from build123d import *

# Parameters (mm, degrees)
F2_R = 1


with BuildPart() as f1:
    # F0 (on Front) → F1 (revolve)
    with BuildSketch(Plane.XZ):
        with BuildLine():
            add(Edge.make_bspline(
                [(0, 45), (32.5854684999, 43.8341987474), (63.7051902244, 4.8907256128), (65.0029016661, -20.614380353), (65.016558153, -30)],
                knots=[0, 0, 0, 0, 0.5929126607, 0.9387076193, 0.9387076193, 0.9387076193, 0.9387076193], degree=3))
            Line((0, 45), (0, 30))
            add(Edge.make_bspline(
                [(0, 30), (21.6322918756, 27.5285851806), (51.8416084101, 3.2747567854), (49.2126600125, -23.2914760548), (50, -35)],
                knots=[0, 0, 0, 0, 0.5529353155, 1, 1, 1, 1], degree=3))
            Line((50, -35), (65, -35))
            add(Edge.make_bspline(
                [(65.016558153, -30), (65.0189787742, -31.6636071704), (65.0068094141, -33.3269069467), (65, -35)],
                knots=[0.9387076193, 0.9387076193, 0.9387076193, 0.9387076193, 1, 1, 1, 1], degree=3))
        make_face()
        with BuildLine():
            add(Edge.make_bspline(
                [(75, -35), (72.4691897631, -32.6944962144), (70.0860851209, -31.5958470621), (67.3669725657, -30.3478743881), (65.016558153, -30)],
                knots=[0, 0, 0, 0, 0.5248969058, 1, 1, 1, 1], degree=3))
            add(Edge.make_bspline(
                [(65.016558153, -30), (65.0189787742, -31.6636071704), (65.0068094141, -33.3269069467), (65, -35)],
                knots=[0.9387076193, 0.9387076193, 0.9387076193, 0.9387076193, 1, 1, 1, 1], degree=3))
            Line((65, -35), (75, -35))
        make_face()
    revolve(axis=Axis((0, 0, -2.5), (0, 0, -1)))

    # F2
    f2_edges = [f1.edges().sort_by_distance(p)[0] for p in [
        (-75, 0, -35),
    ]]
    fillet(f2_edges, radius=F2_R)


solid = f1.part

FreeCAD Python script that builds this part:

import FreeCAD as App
import Part
import Sketcher

V = App.Vector


def edges_at(feature, points):
    """Names of the edges that pass closest to the given points."""
    edges = feature.Shape.Edges
    near = lambda p: min(range(len(edges)), key=lambda i: edges[i].distToShape(Part.Vertex(*p))[0])
    return sorted({f"Edge{near(p) + 1}" for p in points})

doc = App.newDocument("Part")
body = doc.addObject("PartDesign::Body", "Body")

sketch1 = body.newObject("Sketcher::SketchObject", "Sketch")
sketch1.AttachmentSupport = (doc.getObject("XZ_Plane"), [""])
sketch1.MapMode = "FlatFace"
sketch1.addGeometry([
    Part.BSplineCurve([V(0, 45, 0), V(32.585468, 43.834199, 0), V(63.70519, 4.890726, 0), V(65.002902, -20.61438, 0), V(65.016558, -30, 0)], [4, 1, 4], [0, 0.592912661, 0.938707619], False, 3, [1, 1, 1, 1, 1], False),
    Part.LineSegment(V(0, 45, 0), V(0, 30, 0)),
    Part.BSplineCurve([V(0, 30, 0), V(21.632292, 27.528585, 0), V(51.841608, 3.274757, 0), V(49.21266, -23.291476, 0), V(50, -35, 0)], [4, 1, 4], [0, 0.552935315, 1], False, 3, [1, 1, 1, 1, 1], False),
    Part.LineSegment(V(50, -35, 0), V(75, -35, 0)),
    Part.BSplineCurve([V(75, -35, 0), V(72.46919, -32.694496, 0), V(70.086085, -31.595847, 0), V(67.366973, -30.347874, 0), V(65.016558, -30, 0)], [4, 1, 4], [0, 0.524896906, 1], False, 3, [1, 1, 1, 1, 1], False),
], False)
sketch1.addConstraint([
    Sketcher.Constraint("Block", 0),
    Sketcher.Constraint("Block", 2),
    Sketcher.Constraint("Block", 4),
    Sketcher.Constraint("Coincident", 0, 1, 1, 1),
    Sketcher.Constraint("Coincident", 1, 2, 2, 1),
    Sketcher.Constraint("Coincident", 2, 2, 3, 1),
    Sketcher.Constraint("Coincident", 3, 2, 4, 1),
])
revolution = body.newObject("PartDesign::Revolution", "Revolution")
revolution.Profile = sketch1
revolution.ReferenceAxis = (sketch1, ["V_Axis"])
revolution.Angle = 360
doc.recompute()

fillet = body.newObject("PartDesign::Fillet", "Fillet")
fillet.Base = (revolution, edges_at(revolution, [(-75, 0, -35)]))
fillet.Radius = 1

doc.recompute()
